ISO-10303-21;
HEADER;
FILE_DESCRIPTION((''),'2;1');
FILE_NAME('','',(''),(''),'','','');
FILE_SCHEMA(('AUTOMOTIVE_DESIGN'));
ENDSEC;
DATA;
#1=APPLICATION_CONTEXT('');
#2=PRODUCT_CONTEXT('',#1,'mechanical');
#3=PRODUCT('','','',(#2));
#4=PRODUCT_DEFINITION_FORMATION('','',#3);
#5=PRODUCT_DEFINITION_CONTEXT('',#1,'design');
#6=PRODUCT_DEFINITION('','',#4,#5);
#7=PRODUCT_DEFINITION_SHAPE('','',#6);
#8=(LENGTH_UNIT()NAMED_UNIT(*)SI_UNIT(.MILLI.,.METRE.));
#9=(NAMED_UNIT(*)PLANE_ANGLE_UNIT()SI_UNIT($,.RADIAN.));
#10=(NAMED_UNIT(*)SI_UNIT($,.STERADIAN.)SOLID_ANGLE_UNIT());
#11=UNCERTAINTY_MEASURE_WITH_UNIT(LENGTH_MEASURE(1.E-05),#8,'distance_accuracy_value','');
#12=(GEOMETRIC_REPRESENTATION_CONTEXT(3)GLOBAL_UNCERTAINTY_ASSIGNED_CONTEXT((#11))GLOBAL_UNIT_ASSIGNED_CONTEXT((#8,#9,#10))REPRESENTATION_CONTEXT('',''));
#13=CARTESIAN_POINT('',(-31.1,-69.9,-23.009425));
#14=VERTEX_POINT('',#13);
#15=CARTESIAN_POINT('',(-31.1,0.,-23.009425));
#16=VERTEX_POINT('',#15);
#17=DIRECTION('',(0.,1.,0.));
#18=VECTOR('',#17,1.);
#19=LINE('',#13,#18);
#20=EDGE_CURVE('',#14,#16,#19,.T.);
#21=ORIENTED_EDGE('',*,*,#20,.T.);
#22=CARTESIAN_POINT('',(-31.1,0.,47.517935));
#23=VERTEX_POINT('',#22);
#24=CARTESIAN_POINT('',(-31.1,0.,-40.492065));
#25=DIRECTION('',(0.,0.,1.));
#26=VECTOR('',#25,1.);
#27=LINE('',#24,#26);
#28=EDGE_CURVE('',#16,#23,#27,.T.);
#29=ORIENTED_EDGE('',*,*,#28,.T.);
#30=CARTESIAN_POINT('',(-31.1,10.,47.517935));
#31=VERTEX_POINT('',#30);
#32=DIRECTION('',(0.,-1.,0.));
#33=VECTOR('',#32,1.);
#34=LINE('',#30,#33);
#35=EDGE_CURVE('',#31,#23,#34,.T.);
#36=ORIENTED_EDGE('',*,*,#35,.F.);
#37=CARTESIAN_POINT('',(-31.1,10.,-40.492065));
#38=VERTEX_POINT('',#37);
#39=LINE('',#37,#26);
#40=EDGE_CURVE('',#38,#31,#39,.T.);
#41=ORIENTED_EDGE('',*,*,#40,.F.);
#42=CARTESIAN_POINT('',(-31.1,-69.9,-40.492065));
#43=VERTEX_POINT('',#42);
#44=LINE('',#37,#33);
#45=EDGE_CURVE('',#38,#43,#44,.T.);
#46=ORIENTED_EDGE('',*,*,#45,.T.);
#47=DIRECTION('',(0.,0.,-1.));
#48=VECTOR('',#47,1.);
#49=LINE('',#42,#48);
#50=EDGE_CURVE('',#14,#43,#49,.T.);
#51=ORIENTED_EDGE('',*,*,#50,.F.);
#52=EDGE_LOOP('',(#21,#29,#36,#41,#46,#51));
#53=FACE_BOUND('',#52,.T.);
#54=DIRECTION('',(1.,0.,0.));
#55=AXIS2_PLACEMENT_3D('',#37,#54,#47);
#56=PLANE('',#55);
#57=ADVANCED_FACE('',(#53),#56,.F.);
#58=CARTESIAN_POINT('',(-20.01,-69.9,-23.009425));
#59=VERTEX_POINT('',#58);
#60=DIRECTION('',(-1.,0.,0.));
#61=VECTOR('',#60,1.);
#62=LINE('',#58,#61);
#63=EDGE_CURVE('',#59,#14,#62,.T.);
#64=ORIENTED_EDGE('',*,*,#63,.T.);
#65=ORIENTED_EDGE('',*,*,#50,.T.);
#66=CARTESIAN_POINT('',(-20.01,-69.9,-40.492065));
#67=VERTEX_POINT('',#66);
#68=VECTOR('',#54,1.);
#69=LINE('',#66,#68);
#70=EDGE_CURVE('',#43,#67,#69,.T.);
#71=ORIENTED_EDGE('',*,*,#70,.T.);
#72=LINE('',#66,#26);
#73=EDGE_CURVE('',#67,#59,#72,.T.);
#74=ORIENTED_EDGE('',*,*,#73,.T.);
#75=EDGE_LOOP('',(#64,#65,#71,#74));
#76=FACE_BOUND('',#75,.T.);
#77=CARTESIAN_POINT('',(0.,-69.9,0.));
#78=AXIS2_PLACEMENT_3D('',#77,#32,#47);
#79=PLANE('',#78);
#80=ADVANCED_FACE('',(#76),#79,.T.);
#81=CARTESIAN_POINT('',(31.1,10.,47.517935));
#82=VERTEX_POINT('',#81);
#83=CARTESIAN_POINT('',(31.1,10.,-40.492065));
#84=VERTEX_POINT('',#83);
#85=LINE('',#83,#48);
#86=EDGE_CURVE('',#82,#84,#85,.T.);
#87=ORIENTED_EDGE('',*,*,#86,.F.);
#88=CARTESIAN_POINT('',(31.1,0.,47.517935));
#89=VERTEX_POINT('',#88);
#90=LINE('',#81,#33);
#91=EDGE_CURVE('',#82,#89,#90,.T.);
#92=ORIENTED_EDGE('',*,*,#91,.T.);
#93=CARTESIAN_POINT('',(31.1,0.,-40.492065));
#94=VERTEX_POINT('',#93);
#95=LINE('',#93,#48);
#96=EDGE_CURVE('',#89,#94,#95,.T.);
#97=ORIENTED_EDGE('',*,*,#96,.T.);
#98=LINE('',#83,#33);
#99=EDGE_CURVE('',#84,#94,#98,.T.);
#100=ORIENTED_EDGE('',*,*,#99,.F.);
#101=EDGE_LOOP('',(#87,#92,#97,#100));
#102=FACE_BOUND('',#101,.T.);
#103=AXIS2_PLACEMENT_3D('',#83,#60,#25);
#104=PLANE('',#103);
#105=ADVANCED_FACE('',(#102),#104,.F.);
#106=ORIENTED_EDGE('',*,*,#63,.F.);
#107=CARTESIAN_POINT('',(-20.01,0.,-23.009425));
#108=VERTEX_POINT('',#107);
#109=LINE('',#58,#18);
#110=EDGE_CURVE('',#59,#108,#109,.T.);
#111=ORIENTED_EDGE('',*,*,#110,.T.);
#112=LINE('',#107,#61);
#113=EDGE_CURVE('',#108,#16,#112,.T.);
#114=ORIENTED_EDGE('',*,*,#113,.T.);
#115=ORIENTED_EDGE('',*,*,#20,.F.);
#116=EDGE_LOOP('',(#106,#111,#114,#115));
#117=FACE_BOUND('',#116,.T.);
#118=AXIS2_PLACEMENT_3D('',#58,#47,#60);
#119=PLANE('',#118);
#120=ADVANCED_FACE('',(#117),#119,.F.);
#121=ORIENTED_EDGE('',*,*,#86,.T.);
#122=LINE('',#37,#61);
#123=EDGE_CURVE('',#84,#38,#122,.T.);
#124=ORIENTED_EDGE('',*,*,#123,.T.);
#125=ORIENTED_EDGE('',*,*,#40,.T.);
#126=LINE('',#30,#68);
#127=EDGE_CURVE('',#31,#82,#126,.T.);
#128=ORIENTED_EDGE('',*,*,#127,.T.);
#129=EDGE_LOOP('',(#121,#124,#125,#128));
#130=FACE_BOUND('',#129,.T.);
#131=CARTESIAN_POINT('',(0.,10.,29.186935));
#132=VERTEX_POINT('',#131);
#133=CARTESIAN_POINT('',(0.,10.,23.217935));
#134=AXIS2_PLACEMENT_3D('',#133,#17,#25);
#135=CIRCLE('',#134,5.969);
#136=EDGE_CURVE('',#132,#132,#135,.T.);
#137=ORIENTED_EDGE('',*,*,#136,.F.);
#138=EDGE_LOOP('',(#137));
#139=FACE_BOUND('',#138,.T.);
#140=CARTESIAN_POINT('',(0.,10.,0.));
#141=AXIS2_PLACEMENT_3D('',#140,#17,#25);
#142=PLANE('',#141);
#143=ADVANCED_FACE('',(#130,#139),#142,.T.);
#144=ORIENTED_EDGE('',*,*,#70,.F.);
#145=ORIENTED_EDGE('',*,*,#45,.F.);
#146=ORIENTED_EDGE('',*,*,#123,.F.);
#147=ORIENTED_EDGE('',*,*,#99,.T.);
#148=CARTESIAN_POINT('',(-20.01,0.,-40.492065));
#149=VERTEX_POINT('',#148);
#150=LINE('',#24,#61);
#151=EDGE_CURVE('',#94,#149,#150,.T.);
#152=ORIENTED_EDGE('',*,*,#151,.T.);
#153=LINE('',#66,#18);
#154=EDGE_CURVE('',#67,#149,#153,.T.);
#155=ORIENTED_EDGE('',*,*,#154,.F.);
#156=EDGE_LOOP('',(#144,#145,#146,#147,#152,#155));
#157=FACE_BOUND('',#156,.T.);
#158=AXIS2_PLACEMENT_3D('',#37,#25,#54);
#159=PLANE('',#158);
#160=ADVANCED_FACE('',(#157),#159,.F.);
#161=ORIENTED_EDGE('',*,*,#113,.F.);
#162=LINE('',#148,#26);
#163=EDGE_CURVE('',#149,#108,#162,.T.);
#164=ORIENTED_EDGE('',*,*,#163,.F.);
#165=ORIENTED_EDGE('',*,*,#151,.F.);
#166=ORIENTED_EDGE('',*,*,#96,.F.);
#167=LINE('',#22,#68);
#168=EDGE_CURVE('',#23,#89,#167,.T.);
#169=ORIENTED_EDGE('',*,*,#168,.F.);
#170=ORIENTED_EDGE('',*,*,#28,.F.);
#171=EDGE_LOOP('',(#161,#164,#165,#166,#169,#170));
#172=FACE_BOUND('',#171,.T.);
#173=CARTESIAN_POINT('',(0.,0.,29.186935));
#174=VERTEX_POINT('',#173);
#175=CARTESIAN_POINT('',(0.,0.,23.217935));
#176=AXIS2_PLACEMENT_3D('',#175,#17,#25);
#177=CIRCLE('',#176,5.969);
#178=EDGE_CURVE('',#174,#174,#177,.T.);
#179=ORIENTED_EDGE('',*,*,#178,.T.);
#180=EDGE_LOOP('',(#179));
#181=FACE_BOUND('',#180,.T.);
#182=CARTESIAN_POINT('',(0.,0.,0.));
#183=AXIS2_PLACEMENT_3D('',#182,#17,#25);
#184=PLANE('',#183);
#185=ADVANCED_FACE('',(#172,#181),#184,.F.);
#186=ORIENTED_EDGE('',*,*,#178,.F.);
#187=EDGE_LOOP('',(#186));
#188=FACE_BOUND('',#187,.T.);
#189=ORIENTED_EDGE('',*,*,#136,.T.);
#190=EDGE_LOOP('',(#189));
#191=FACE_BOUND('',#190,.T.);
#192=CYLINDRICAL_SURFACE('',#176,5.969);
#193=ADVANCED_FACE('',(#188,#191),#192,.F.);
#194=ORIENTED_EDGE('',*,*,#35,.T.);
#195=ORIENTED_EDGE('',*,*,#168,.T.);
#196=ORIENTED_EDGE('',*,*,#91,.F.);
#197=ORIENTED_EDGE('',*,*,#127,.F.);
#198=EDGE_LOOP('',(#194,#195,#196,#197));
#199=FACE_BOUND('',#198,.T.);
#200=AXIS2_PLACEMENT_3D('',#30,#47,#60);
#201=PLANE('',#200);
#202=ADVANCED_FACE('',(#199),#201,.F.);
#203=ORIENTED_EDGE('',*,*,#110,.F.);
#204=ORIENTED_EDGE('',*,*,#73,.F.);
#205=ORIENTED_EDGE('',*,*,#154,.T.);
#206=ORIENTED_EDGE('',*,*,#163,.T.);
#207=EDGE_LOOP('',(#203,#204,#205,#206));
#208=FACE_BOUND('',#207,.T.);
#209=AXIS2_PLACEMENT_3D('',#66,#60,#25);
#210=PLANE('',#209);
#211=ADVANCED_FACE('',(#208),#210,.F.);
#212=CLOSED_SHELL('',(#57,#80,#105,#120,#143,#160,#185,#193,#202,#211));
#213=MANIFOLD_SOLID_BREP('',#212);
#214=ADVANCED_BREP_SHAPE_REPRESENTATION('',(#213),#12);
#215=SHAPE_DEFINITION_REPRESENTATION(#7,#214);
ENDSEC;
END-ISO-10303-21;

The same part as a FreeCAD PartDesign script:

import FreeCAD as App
import Part
import Sketcher
from FreeCAD import Vector
Q = App.Units.Quantity

doc = App.newDocument("Part")
body = doc.addObject("PartDesign::Body", "Body")

sketch1 = body.newObject("Sketcher::SketchObject", "Sketch")
sketch1.AttachmentSupport = (doc.getObject("XZ_Plane"), [""])
sketch1.MapMode = "FlatFace"
sketch1.addGeometry([
    Part.LineSegment(Vector(-31, -40, 0), Vector(-31, 48, 0)),
    Part.LineSegment(Vector(-31, 48, 0), Vector(31, 48, 0)),
    Part.LineSegment(Vector(31, 48, 0), Vector(31, -40, 0)),
    Part.LineSegment(Vector(31, -40, 0), Vector(-31, -40, 0)),
], False)
sketch1.addConstraint([
    Sketcher.Constraint("Coincident", 0, 2, 1, 1),
    Sketcher.Constraint("Coincident", 1, 2, 2, 1),
    Sketcher.Constraint("Coincident", 2, 2, 3, 1),
    Sketcher.Constraint("Coincident", 3, 2, 0, 1),
    Sketcher.Constraint("Vertical", 0),
    Sketcher.Constraint("Horizontal", 1),
    Sketcher.Constraint("Vertical", 2),
    Sketcher.Constraint("Horizontal", 3),
    Sketcher.Constraint("DistanceX", 1, 1, 1, 2, Q("62.2 mm")),
    Sketcher.Constraint("DistanceY", 0, 1, 0, 2, Q("88.01 mm")),
    Sketcher.Constraint("DistanceX", 0, 2, -1, 1, Q("31.1 mm")),
    Sketcher.Constraint("DistanceY", -1, 1, 0, 2, Q("47.517935 mm")),
])
pad1 = body.newObject("PartDesign::Pad", "Pad")
pad1.Profile = sketch1
pad1.Length = 10
pad1.Reversed = True

sketch2 = body.newObject("Sketcher::SketchObject", "Sketch001")
sketch2.AttachmentSupport = (doc.getObject("XZ_Plane"), [""])
sketch2.MapMode = "FlatFace"
sketch2.AttachmentOffset = App.Placement(Vector(0, 0, -10), App.Rotation())
sketch2.addGeometry(Part.Circle(Vector(0, 23, 0), Vector(0, 0, 1), 6), False)
sketch2.addConstraint([
    Sketcher.Constraint("PointOnObject", 0, 3, -2),
    Sketcher.Constraint("Diameter", 0, Q("11.938 mm")),
    Sketcher.Constraint("DistanceY", -1, 1, 0, 3, Q("23.217935 mm")),
])
pocket1 = body.newObject("PartDesign::Pocket", "Pocket")
pocket1.Profile = sketch2
pocket1.Length = 10
pocket1.Reversed = True

sketch3 = body.newObject("Sketcher::SketchObject", "Sketch002")
sketch3.AttachmentSupport = (doc.getObject("XZ_Plane"), [""])
sketch3.MapMode = "FlatFace"
sketch3.addGeometry([
    Part.LineSegment(Vector(-31, -23, 0), Vector(-31, -40, 0)),
    Part.LineSegment(Vector(-31, -40, 0), Vector(-20, -40, 0)),
    Part.LineSegment(Vector(-20, -40, 0), Vector(-20, -23, 0)),
    Part.LineSegment(Vector(-20, -23, 0), Vector(-31, -23, 0)),
], False)
sketch3.addConstraint([
    Sketcher.Constraint("Coincident", 0, 2, 1, 1),
    Sketcher.Constraint("Coincident", 1, 2, 2, 1),
    Sketcher.Constraint("Coincident", 2, 2, 3, 1),
    Sketcher.Constraint("Coincident", 3, 2, 0, 1),
    Sketcher.Constraint("Vertical", 0),
    Sketcher.Constraint("Horizontal", 1),
    Sketcher.Constraint("Vertical", 2),
    Sketcher.Constraint("Horizontal", 3),
    Sketcher.Constraint("DistanceX", 1, 1, 1, 2, Q("11.09 mm")),
    Sketcher.Constraint("DistanceX", 0, 2, -1, 1, Q("31.1 mm")),
    Sketcher.Constraint("DistanceY", 0, 2, 0, 1, Q("17.48264 mm")),
    Sketcher.Constraint("DistanceY", 0, 2, -1, 1, Q("40.492065 mm")),
])
pad2 = body.newObject("PartDesign::Pad", "Pad001")
pad2.Profile = sketch3
pad2.Length = 69.9

doc.recompute()
